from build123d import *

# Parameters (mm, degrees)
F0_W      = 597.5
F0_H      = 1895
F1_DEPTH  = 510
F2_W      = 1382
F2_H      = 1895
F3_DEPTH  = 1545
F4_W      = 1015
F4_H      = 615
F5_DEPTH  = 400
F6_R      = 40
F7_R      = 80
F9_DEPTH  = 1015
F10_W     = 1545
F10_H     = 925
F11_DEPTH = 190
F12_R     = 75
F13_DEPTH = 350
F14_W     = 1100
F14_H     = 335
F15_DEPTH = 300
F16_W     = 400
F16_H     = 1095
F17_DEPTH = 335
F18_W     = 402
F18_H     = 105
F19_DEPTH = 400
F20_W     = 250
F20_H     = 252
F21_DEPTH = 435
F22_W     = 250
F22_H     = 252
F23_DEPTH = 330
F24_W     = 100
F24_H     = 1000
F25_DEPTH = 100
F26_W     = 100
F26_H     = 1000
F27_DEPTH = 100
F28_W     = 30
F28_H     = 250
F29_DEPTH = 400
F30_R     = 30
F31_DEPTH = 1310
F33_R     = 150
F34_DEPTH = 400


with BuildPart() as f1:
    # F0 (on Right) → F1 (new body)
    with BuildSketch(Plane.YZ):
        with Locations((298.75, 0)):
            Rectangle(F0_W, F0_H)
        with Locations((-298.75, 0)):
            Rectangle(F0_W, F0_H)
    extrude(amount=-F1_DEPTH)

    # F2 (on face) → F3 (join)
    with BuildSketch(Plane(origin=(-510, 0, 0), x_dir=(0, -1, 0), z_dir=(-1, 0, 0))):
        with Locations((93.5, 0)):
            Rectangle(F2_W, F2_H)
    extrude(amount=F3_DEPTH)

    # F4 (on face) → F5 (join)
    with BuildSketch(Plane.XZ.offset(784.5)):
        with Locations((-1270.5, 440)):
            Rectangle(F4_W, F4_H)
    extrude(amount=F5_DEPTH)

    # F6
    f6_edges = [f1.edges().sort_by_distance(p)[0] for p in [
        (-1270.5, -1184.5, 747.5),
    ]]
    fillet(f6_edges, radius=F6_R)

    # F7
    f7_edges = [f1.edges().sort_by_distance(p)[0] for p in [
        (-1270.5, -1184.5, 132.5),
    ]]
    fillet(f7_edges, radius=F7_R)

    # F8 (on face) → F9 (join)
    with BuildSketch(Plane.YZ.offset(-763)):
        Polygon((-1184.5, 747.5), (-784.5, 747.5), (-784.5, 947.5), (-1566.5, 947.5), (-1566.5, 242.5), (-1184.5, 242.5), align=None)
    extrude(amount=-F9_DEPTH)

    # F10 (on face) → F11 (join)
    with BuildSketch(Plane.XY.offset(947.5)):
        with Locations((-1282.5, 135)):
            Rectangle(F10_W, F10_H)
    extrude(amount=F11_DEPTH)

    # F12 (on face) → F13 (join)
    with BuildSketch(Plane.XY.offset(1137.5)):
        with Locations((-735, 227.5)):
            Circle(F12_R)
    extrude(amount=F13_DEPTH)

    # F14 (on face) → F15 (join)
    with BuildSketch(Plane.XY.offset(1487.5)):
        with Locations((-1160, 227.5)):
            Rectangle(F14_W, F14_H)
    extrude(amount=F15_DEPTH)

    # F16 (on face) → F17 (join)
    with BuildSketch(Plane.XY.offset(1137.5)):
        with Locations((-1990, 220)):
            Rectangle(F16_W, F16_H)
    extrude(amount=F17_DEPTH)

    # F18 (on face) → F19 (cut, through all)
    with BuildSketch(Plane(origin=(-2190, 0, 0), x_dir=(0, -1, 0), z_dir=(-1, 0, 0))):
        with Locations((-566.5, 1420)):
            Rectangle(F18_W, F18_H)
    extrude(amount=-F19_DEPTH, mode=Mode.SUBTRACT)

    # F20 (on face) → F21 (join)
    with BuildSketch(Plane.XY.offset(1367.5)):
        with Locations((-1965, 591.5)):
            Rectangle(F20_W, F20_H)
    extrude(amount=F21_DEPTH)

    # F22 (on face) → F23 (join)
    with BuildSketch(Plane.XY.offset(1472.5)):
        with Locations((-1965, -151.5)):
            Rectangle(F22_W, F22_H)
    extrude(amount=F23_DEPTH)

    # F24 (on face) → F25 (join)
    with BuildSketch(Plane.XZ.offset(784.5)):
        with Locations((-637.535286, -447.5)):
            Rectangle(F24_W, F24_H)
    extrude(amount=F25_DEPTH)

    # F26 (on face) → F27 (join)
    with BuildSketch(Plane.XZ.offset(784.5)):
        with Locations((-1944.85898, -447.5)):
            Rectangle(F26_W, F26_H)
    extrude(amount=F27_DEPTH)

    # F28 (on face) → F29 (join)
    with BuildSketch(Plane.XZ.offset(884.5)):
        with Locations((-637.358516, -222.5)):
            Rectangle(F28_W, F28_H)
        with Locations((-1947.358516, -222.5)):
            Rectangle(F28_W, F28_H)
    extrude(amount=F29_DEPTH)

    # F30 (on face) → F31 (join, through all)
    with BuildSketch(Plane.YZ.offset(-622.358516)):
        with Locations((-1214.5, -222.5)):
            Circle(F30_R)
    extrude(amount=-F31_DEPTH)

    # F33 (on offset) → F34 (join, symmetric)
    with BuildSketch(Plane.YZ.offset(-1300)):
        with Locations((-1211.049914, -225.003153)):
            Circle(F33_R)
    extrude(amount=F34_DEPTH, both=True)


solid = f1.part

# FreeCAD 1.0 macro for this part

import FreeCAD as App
import Part
import Sketcher
Q = App.Units.Quantity


def edges_at(feature, points):
    """Names of the edges that pass closest to the given points."""
    edges = feature.Shape.Edges
    near = lambda p: min(range(len(edges)), key=lambda i: edges[i].distToShape(Part.Vertex(*p))[0])
    return sorted({f"Edge{near(p) + 1}" for p in points})


def add_polygon(sketch, points):
    """Adds a closed chain of lines whose ends are joined by coincident constraints."""
    first, n = sketch.GeometryCount, len(points)
    for a, b in zip(points, points[1:] + points[:1]):
        sketch.addGeometry(Part.LineSegment(App.Vector(*a, 0), App.Vector(*b, 0)), False)
    for i in range(n):
        sketch.addConstraint(Sketcher.Constraint("Coincident", first + i, 2, first + (i + 1) % n, 1))

doc = App.newDocument("Part")
params = doc.addObject("Spreadsheet::Sheet", "Params")
for row, (alias, value) in enumerate([
    ("sketch1_width", "1195 mm"),
    ("sketch1_height", "1895 mm"),
    ("pad1_length", "510 mm"),
    ("sketch2_width", "1382 mm"),
    ("sketch2_height", "1895 mm"),
    ("pad2_length", "1545 mm"),
    ("sketch3_width", "1015 mm"),
    ("sketch3_height", "615 mm"),
    ("pad3_length", "400 mm"),
    ("fillet_radius", "40 mm"),
    ("fillet2_radius", "80 mm"),
    ("sketch4_width", "400 mm"),
    ("sketch4_width2", "782 mm"),
    ("sketch4_height", "200 mm"),
    ("sketch4_height2", "705 mm"),
    ("pad4_length", "1015 mm"),
    ("sketch5_width", "1545 mm"),
    ("sketch5_height", "925 mm"),
    ("pad5_length", "190 mm"),
    ("sketch6_diameter", "150 mm"),
    ("pad6_length", "350 mm"),
    ("sketch7_width", "1100 mm"),
    ("sketch7_height", "335 mm"),
    ("pad7_length", "300 mm"),
    ("sketch8_width", "400 mm"),
    ("sketch8_height", "1095 mm"),
    ("pad8_length", "335 mm"),
    ("sketch9_width", "402 mm"),
    ("sketch9_height", "105 mm"),
    ("sketch10_width", "250 mm"),
    ("sketch10_height", "252 mm"),
    ("pad9_length", "435 mm"),
    ("sketch11_width", "250 mm"),
    ("sketch11_height", "252 mm"),
    ("pad10_length", "330 mm"),
    ("sketch12_width", "100 mm"),
    ("sketch12_height", "1000 mm"),
    ("pad11_length", "100 mm"),
    ("sketch13_width", "100 mm"),
    ("sketch13_height", "1000 mm"),
    ("pad12_length", "100 mm"),
    ("sketch14_width", "30 mm"),
    ("sketch14_height", "250 mm"),
    ("pad13_length", "400 mm"),
    ("sketch15_diameter", "60 mm"),
    ("sketch16_diameter", "300 mm"),
    ("pad15_length", "800 mm"),
], start=1):
    params.set(f"A{row}", alias)
    params.set(f"B{row}", "=" + value)
    params.setAlias(f"B{row}", alias)

body = doc.addObject("PartDesign::Body", "Body")

# Sketch on YZ plane
sketch1 = body.newObject("Sketcher::SketchObject", "Sketch")
sketch1.AttachmentSupport = (doc.getObject("YZ_Plane"), [""])
sketch1.MapMode = "FlatFace"
add_polygon(sketch1, [(598, -948), (598, 948), (-598, 948), (-598, -948)])  # lines 0-3
sketch1.addConstraint([
    Sketcher.Constraint("Vertical", 0),
    Sketcher.Constraint("Horizontal", 1),
    Sketcher.Constraint("Vertical", 2),
    Sketcher.Constraint("Horizontal", 3),
    Sketcher.Constraint("Symmetric", 0, 2, 2, 2, -1, 1),
    Sketcher.Constraint("DistanceX", 1, 2, 1, 1, Q("1195 mm")),
    Sketcher.Constraint("DistanceY", 0, 1, 0, 2, Q("1895 mm")),
])
sketch1.setExpression("Constraints[9]", "Params.sketch1_width")
sketch1.setExpression("Constraints[10]", "Params.sketch1_height")
pad1 = body.newObject("PartDesign::Pad", "Pad")
pad1.Profile = sketch1
pad1.setExpression("Length", "Params.pad1_length")
pad1.Reversed = True

# Sketch on YZ plane
sketch2 = body.newObject("Sketcher::SketchObject", "Sketch001")
sketch2.AttachmentSupport = (doc.getObject("YZ_Plane"), [""])
sketch2.MapMode = "FlatFace"
sketch2.AttachmentOffset = App.Placement(App.Vector(0, 0, -510), App.Rotation())
add_polygon(sketch2, [(598, 948), (598, -948), (-784, -948), (-784, 948)])  # lines 0-3
sketch2.addConstraint([
    Sketcher.Constraint("Vertical", 0),
    Sketcher.Constraint("Horizontal", 1),
    Sketcher.Constraint("Vertical", 2),
    Sketcher.Constraint("Horizontal", 3),
    Sketcher.Constraint("DistanceX", 1, 2, 1, 1, Q("1382 mm")),
    Sketcher.Constraint("DistanceY", 0, 2, 0, 1, Q("1895 mm")),
    Sketcher.Constraint("DistanceX", -1, 1, 0, 2, Q("597.5 mm")),
    Sketcher.Constraint("DistanceY", 0, 2, -1, 1, Q("947.5 mm")),
])
sketch2.setExpression("Constraints[8]", "Params.sketch2_width")
sketch2.setExpression("Constraints[9]", "Params.sketch2_height")
pad2 = body.newObject("PartDesign::Pad", "Pad001")
pad2.Profile = sketch2
pad2.setExpression("Length", "Params.pad2_length")
pad2.Reversed = True

# Sketch on XZ plane
sketch3 = body.newObject("Sketcher::SketchObject", "Sketch002")
sketch3.AttachmentSupport = (doc.getObject("XZ_Plane"), [""])
sketch3.MapMode = "FlatFace"
sketch3.AttachmentOffset = App.Placement(App.Vector(0, 0, 784.5), App.Rotation())
add_polygon(sketch3, [(-1778, 748), (-1778, 132), (-763, 132), (-763, 748)])  # lines 0-3
sketch3.addConstraint([
    Sketcher.Constraint("Vertical", 0),
    Sketcher.Constraint("Horizontal", 1),
    Sketcher.Constraint("Vertical", 2),
    Sketcher.Constraint("Horizontal", 3),
    Sketcher.Constraint("DistanceX", 1, 1, 1, 2, Q("1015 mm")),
    Sketcher.Constraint("DistanceY", 0, 2, 0, 1, Q("615 mm")),
    Sketcher.Constraint("DistanceX", 0, 2, -1, 1, Q("1778 mm")),
    Sketcher.Constraint("DistanceY", -1, 1, 0, 2, Q("132.5 mm")),
])
sketch3.setExpression("Constraints[8]", "Params.sketch3_width")
sketch3.setExpression("Constraints[9]", "Params.sketch3_height")
pad3 = body.newObject("PartDesign::Pad", "Pad002")
pad3.Profile = sketch3
pad3.setExpression("Length", "Params.pad3_length")
doc.recompute()

fillet = body.newObject("PartDesign::Fillet", "Fillet")
fillet.Base = (pad3, edges_at(pad3, [(-1270.5, -1184.5, 747.5)]))
fillet.setExpression("Radius", "Params.fillet_radius")
doc.recompute()

fillet2 = body.newObject("PartDesign::Fillet", "Fillet001")
fillet2.Base = (fillet, edges_at(fillet, [(-1270.5, -1184.5, 132.5)]))
fillet2.setExpression("Radius", "Params.fillet2_radius")

# Sketch on YZ plane
sketch4 = body.newObject("Sketcher::SketchObject", "Sketch003")
sketch4.AttachmentSupport = (doc.getObject("YZ_Plane"), [""])
sketch4.MapMode = "FlatFace"
sketch4.AttachmentOffset = App.Placement(App.Vector(0, 0, -763), App.Rotation())
add_polygon(sketch4, [(-1184, 748), (-784, 748), (-784, 948), (-1566, 948), (-1566, 242), (-1184, 242)])  # lines 0-5
sketch4.addConstraint([
    Sketcher.Constraint("Horizontal", 0),
    Sketcher.Constraint("Vertical", 1),
    Sketcher.Constraint("Horizontal", 2),
    Sketcher.Constraint("Vertical", 3),
    Sketcher.Constraint("Horizontal", 4),
    Sketcher.Constraint("Vertical", 5),
    Sketcher.Constraint("DistanceX", 0, 1, 0, 2, Q("400 mm")),
    Sketcher.Constraint("DistanceX", 2, 2, 2, 1, Q("782 mm")),
    Sketcher.Constraint("DistanceY", 1, 1, 1, 2, Q("200 mm")),
    Sketcher.Constraint("DistanceY", 3, 2, 3, 1, Q("705 mm")),
    Sketcher.Constraint("DistanceX", 0, 2, -1, 1, Q("784.5 mm")),
    Sketcher.Constraint("DistanceY", -1, 1, 0, 2, Q("747.5 mm")),
])
sketch4.setExpression("Constraints[12]", "Params.sketch4_width")
sketch4.setExpression("Constraints[13]", "Params.sketch4_width2")
sketch4.setExpression("Constraints[14]", "Params.sketch4_height")
sketch4.setExpression("Constraints[15]", "Params.sketch4_height2")
pad4 = body.newObject("PartDesign::Pad", "Pad003")
pad4.Profile = sketch4
pad4.setExpression("Length", "Params.pad4_length")
pad4.Reversed = True

# Sketch on XY plane
sketch5 = body.newObject("Sketcher::SketchObject", "Sketch004")
sketch5.AttachmentSupport = (doc.getObject("XY_Plane"), [""])
sketch5.MapMode = "FlatFace"
sketch5.AttachmentOffset = App.Placement(App.Vector(0, 0, 947.5), App.Rotation())
add_polygon(sketch5, [(-2055, 598), (-2055, -328), (-510, -328), (-510, 598)])  # lines 0-3
sketch5.addConstraint([
    Sketcher.Constraint("Vertical", 0),
    Sketcher.Constraint("Horizontal", 1),
    Sketcher.Constraint("Vertical", 2),
    Sketcher.Constraint("Horizontal", 3),
    Sketcher.Constraint("DistanceX", 1, 1, 1, 2, Q("1545 mm")),
    Sketcher.Constraint("DistanceY", 0, 2, 0, 1, Q("925 mm")),
    Sketcher.Constraint("DistanceX", 0, 2, -1, 1, Q("2055 mm")),
    Sketcher.Constraint("DistanceY", 0, 2, -1, 1, Q("327.5 mm")),
])
sketch5.setExpression("Constraints[8]", "Params.sketch5_width")
sketch5.setExpression("Constraints[9]", "Params.sketch5_height")
pad5 = body.newObject("PartDesign::Pad", "Pad004")
pad5.Profile = sketch5
pad5.setExpression("Length", "Params.pad5_length")

# Sketch on XY plane
sketch6 = body.newObject("Sketcher::SketchObject", "Sketch005")
sketch6.AttachmentSupport = (doc.getObject("XY_Plane"), [""])
sketch6.MapMode = "FlatFace"
sketch6.AttachmentOffset = App.Placement(App.Vector(0, 0, 1137.5), App.Rotation())
sketch6.addGeometry(Part.Circle(App.Vector(-735, 228, 0), App.Vector(0, 0, 1), 75), False)
sketch6.addConstraint([
    Sketcher.Constraint("Diameter", 0, Q("150 mm")),
    Sketcher.Constraint("DistanceX", 0, 3, -1, 1, Q("735 mm")),
    Sketcher.Constraint("DistanceY", -1, 1, 0, 3, Q("227.5 mm")),
])
sketch6.setExpression("Constraints[0]", "Params.sketch6_diameter")
pad6 = body.newObject("PartDesign::Pad", "Pad005")
pad6.Profile = sketch6
pad6.setExpression("Length", "Params.pad6_length")

# Sketch on XY plane
sketch7 = body.newObject("Sketcher::SketchObject", "Sketch006")
sketch7.AttachmentSupport = (doc.getObject("XY_Plane"), [""])
sketch7.MapMode = "FlatFace"
sketch7.AttachmentOffset = App.Placement(App.Vector(0, 0, 1487.5), App.Rotation())
add_polygon(sketch7, [(-1710, 395), (-1710, 60), (-610, 60), (-610, 395)])  # lines 0-3
sketch7.addConstraint([
    Sketcher.Constraint("Vertical", 0),
    Sketcher.Constraint("Horizontal", 1),
    Sketcher.Constraint("Vertical", 2),
    Sketcher.Constraint("Horizontal", 3),
    Sketcher.Constraint("DistanceX", 1, 1, 1, 2, Q("1100 mm")),
    Sketcher.Constraint("DistanceY", 0, 2, 0, 1, Q("335 mm")),
    Sketcher.Constraint("DistanceX", 0, 2, -1, 1, Q("1710 mm")),
    Sketcher.Constraint("DistanceY", -1, 1, 0, 2, Q("60 mm")),
])
sketch7.setExpression("Constraints[8]", "Params.sketch7_width")
sketch7.setExpression("Constraints[9]", "Params.sketch7_height")
pad7 = body.newObject("PartDesign::Pad", "Pad006")
pad7.Profile = sketch7
pad7.setExpression("Length", "Params.pad7_length")

# Sketch on XY plane
sketch8 = body.newObject("Sketcher::SketchObject", "Sketch007")
sketch8.AttachmentSupport = (doc.getObject("XY_Plane"), [""])
sketch8.MapMode = "FlatFace"
sketch8.AttachmentOffset = App.Placement(App.Vector(0, 0, 1137.5), App.Rotation())
add_polygon(sketch8, [(-2190, 768), (-2190, -328), (-1790, -328), (-1790, 768)])  # lines 0-3
sketch8.addConstraint([
    Sketcher.Constraint("Vertical", 0),
    Sketcher.Constraint("Horizontal", 1),
    Sketcher.Constraint("Vertical", 2),
    Sketcher.Constraint("Horizontal", 3),
    Sketcher.Constraint("DistanceX", 1, 1, 1, 2, Q("400 mm")),
    Sketcher.Constraint("DistanceY", 0, 2, 0, 1, Q("1095 mm")),
    Sketcher.Constraint("DistanceX", 0, 2, -1, 1, Q("2190 mm")),
    Sketcher.Constraint("DistanceY", 0, 2, -1, 1, Q("327.5 mm")),
])
sketch8.setExpression("Constraints[8]", "Params.sketch8_width")
sketch8.setExpression("Constraints[9]", "Params.sketch8_height")
pad8 = body.newObject("PartDesign::Pad", "Pad007")
pad8.Profile = sketch8
pad8.setExpression("Length", "Params.pad8_length")

# Sketch on YZ plane
sketch9 = body.newObject("Sketcher::SketchObject", "Sketch008")
sketch9.AttachmentSupport = (doc.getObject("YZ_Plane"), [""])
sketch9.MapMode = "FlatFace"
sketch9.AttachmentOffset = App.Placement(App.Vector(0, 0, -2190), App.Rotation())
add_polygon(sketch9, [(768, 1472), (768, 1368), (366, 1368), (366, 1472)])  # lines 0-3
sketch9.addConstraint([
    Sketcher.Constraint("Vertical", 0),
    Sketcher.Constraint("Horizontal", 1),
    Sketcher.Constraint("Vertical", 2),
    Sketcher.Constraint("Horizontal", 3),
    Sketcher.Constraint("DistanceX", 1, 2, 1, 1, Q("402 mm")),
    Sketcher.Constraint("DistanceY", 0, 2, 0, 1, Q("105 mm")),
    Sketcher.Constraint("DistanceX", -1, 1, 0, 2, Q("767.5 mm")),
    Sketcher.Constraint("DistanceY", -1, 1, 0, 2, Q("1367.5 mm")),
])
sketch9.setExpression("Constraints[8]", "Params.sketch9_width")
sketch9.setExpression("Constraints[9]", "Params.sketch9_height")
pocket1 = body.newObject("PartDesign::Pocket", "Pocket")
pocket1.Profile = sketch9
pocket1.Type = "ThroughAll"
pocket1.Reversed = True

# Sketch on XY plane
sketch10 = body.newObject("Sketcher::SketchObject", "Sketch009")
sketch10.AttachmentSupport = (doc.getObject("XY_Plane"), [""])
sketch10.MapMode = "FlatFace"
sketch10.AttachmentOffset = App.Placement(App.Vector(0, 0, 1367.5), App.Rotation())
add_polygon(sketch10, [(-2090, 718), (-2090, 466), (-1840, 466), (-1840, 718)])  # lines 0-3
sketch10.addConstraint([
    Sketcher.Constraint("Vertical", 0),
    Sketcher.Constraint("Horizontal", 1),
    Sketcher.Constraint("Vertical", 2),
    Sketcher.Constraint("Horizontal", 3),
    Sketcher.Constraint("DistanceX", 1, 1, 1, 2, Q("250 mm")),
    Sketcher.Constraint("DistanceY", 0, 2, 0, 1, Q("252 mm")),
    Sketcher.Constraint("DistanceX", 0, 2, -1, 1, Q("2090 mm")),
    Sketcher.Constraint("DistanceY", -1, 1, 0, 2, Q("465.5 mm")),
])
sketch10.setExpression("Constraints[8]", "Params.sketch10_width")
sketch10.setExpression("Constraints[9]", "Params.sketch10_height")
pad9 = body.newObject("PartDesign::Pad", "Pad008")
pad9.Profile = sketch10
pad9.setExpression("Length", "Params.pad9_length")

# Sketch on XY plane
sketch11 = body.newObject("Sketcher::SketchObject", "Sketch010")
sketch11.AttachmentSupport = (doc.getObject("XY_Plane"), [""])
sketch11.MapMode = "FlatFace"
sketch11.AttachmentOffset = App.Placement(App.Vector(0, 0, 1472.5), App.Rotation())
add_polygon(sketch11, [(-2090, -26), (-2090, -278), (-1840, -278), (-1840, -26)])  # lines 0-3
sketch11.addConstraint([
    Sketcher.Constraint("Vertical", 0),
    Sketcher.Constraint("Horizontal", 1),
    Sketcher.Constraint("Vertical", 2),
    Sketcher.Constraint("Horizontal", 3),
    Sketcher.Constraint("DistanceX", 1, 1, 1, 2, Q("250 mm")),
    Sketcher.Constraint("DistanceY", 0, 2, 0, 1, Q("252 mm")),
    Sketcher.Constraint("DistanceX", 0, 2, -1, 1, Q("2090 mm")),
    Sketcher.Constraint("DistanceY", 0, 2, -1, 1, Q("277.5 mm")),
])
sketch11.setExpression("Constraints[8]", "Params.sketch11_width")
sketch11.setExpression("Constraints[9]", "Params.sketch11_height")
pad10 = body.newObject("PartDesign::Pad", "Pad009")
pad10.Profile = sketch11
pad10.setExpression("Length", "Params.pad10_length")

# Sketch on XZ plane
sketch12 = body.newObject("Sketcher::SketchObject", "Sketch011")
sketch12.AttachmentSupport = (doc.getObject("XZ_Plane"), [""])
sketch12.MapMode = "FlatFace"
sketch12.AttachmentOffset = App.Placement(App.Vector(0, 0, 784.5), App.Rotation())
add_polygon(sketch12, [(-688, 52), (-688, -948), (-588, -948), (-588, 52)])  # lines 0-3
sketch12.addConstraint([
    Sketcher.Constraint("Vertical", 0),
    Sketcher.Constraint("Horizontal", 1),
    Sketcher.Constraint("Vertical", 2),
    Sketcher.Constraint("Horizontal", 3),
    Sketcher.Constraint("DistanceX", 1, 1, 1, 2, Q("100 mm")),
    Sketcher.Constraint("DistanceY", 0, 2, 0, 1, Q("1000 mm")),
    Sketcher.Constraint("DistanceY", 0, 2, -1, 1, Q("947.5 mm")),
    Sketcher.Constraint("DistanceX", 0, 2, -1, 1, Q("687.535286 mm")),
])
sketch12.setExpression("Constraints[8]", "Params.sketch12_width")
sketch12.setExpression("Constraints[9]", "Params.sketch12_height")
pad11 = body.newObject("PartDesign::Pad", "Pad010")
pad11.Profile = sketch12
pad11.setExpression("Length", "Params.pad11_length")

# Sketch on XZ plane
sketch13 = body.newObject("Sketcher::SketchObject", "Sketch012")
sketch13.AttachmentSupport = (doc.getObject("XZ_Plane"), [""])
sketch13.MapMode = "FlatFace"
sketch13.AttachmentOffset = App.Placement(App.Vector(0, 0, 784.5), App.Rotation())
add_polygon(sketch13, [(-1995, 52), (-1995, -948), (-1895, -948), (-1895, 52)])  # lines 0-3
sketch13.addConstraint([
    Sketcher.Constraint("Vertical", 0),
    Sketcher.Constraint("Horizontal", 1),
    Sketcher.Constraint("Vertical", 2),
    Sketcher.Constraint("Horizontal", 3),
    Sketcher.Constraint("DistanceX", 1, 1, 1, 2, Q("100 mm")),
    Sketcher.Constraint("DistanceY", 0, 2, 0, 1, Q("1000 mm")),
    Sketcher.Constraint("DistanceY", 0, 2, -1, 1, Q("947.5 mm")),
    Sketcher.Constraint("DistanceX", 0, 2, -1, 1, Q("1994.85898 mm")),
])
sketch13.setExpression("Constraints[8]", "Params.sketch13_width")
sketch13.setExpression("Constraints[9]", "Params.sketch13_height")
pad12 = body.newObject("PartDesign::Pad", "Pad011")
pad12.Profile = sketch13
pad12.setExpression("Length", "Params.pad12_length")

# Sketch on XZ plane
sketch14 = body.newObject("Sketcher::SketchObject", "Sketch013")
sketch14.AttachmentSupport = (doc.getObject("XZ_Plane"), [""])
sketch14.MapMode = "FlatFace"
sketch14.AttachmentOffset = App.Placement(App.Vector(0, 0, 884.5), App.Rotation())
add_polygon(sketch14, [(-652, -98), (-652, -348), (-622, -348), (-622, -98)])  # lines 0-3
add_polygon(sketch14, [(-1962, -98), (-1962, -348), (-1932, -348), (-1932, -98)])  # lines 4-7
sketch14.addConstraint([
    Sketcher.Constraint("Vertical", 0),
    Sketcher.Constraint("Horizontal", 1),
    Sketcher.Constraint("Vertical", 2),
    Sketcher.Constraint("Horizontal", 3),
    Sketcher.Constraint("Vertical", 4),
    Sketcher.Constraint("Horizontal", 5),
    Sketcher.Constraint("Vertical", 6),
    Sketcher.Constraint("Horizontal", 7),
    Sketcher.Constraint("Horizontal", 1, 2, 4, 2),
    Sketcher.Constraint("Horizontal", 3, 2, 6, 2),
    Sketcher.Constraint("Equal", 3, 5),
    Sketcher.Constraint("DistanceX", 1, 1, 1, 2, Q("30 mm")),
    Sketcher.Constraint("DistanceY", 0, 2, 0, 1, Q("250 mm")),
    Sketcher.Constraint("DistanceX", 4, 2, 0, 2, Q("1310 mm")),
    Sketcher.Constraint("DistanceY", 0, 2, -1, 1, Q("347.5 mm")),
    Sketcher.Constraint("DistanceX", 0, 2, -1, 1, Q("652.358516 mm")),
])
sketch14.setExpression("Constraints[19]", "Params.sketch14_width")
sketch14.setExpression("Constraints[20]", "Params.sketch14_height")
pad13 = body.newObject("PartDesign::Pad", "Pad012")
pad13.Profile = sketch14
pad13.setExpression("Length", "Params.pad13_length")

# Sketch on YZ plane
sketch15 = body.newObject("Sketcher::SketchObject", "Sketch014")
sketch15.AttachmentSupport = (doc.getObject("YZ_Plane"), [""])
sketch15.MapMode = "FlatFace"
sketch15.AttachmentOffset = App.Placement(App.Vector(0, 0, -622.358516), App.Rotation())
sketch15.addGeometry(Part.Circle(App.Vector(-1214, -222, 0), App.Vector(0, 0, 1), 30), False)
sketch15.addConstraint([
    Sketcher.Constraint("Diameter", 0, Q("60 mm")),
    Sketcher.Constraint("DistanceX", 0, 3, -1, 1, Q("1214.5 mm")),
    Sketcher.Constraint("DistanceY", 0, 3, -1, 1, Q("222.5 mm")),
])
sketch15.setExpression("Constraints[0]", "Params.sketch15_diameter")
pad14 = body.newObject("PartDesign::Pad", "Pad013")
pad14.Profile = sketch15
pad14.Type = "UpToLast"
pad14.Reversed = True

# Sketch on YZ plane
sketch16 = body.newObject("Sketcher::SketchObject", "Sketch015")
sketch16.AttachmentSupport = (doc.getObject("YZ_Plane"), [""])
sketch16.MapMode = "FlatFace"
sketch16.AttachmentOffset = App.Placement(App.Vector(0, 0, -1300), App.Rotation())
sketch16.addGeometry(Part.Circle(App.Vector(-1211, -225, 0), App.Vector(0, 0, 1), 150), False)
sketch16.addConstraint([
    Sketcher.Constraint("Diameter", 0, Q("300 mm")),
    Sketcher.Constraint("DistanceX", 0, 3, -1, 1, Q("1211.049914 mm")),
    Sketcher.Constraint("DistanceY", 0, 3, -1, 1, Q("225.003153 mm")),
])
sketch16.setExpression("Constraints[0]", "Params.sketch16_diameter")
pad15 = body.newObject("PartDesign::Pad", "Pad014")
pad15.Profile = sketch16
pad15.setExpression("Length", "Params.pad15_length")
pad15.Midplane = True

doc.recompute()
